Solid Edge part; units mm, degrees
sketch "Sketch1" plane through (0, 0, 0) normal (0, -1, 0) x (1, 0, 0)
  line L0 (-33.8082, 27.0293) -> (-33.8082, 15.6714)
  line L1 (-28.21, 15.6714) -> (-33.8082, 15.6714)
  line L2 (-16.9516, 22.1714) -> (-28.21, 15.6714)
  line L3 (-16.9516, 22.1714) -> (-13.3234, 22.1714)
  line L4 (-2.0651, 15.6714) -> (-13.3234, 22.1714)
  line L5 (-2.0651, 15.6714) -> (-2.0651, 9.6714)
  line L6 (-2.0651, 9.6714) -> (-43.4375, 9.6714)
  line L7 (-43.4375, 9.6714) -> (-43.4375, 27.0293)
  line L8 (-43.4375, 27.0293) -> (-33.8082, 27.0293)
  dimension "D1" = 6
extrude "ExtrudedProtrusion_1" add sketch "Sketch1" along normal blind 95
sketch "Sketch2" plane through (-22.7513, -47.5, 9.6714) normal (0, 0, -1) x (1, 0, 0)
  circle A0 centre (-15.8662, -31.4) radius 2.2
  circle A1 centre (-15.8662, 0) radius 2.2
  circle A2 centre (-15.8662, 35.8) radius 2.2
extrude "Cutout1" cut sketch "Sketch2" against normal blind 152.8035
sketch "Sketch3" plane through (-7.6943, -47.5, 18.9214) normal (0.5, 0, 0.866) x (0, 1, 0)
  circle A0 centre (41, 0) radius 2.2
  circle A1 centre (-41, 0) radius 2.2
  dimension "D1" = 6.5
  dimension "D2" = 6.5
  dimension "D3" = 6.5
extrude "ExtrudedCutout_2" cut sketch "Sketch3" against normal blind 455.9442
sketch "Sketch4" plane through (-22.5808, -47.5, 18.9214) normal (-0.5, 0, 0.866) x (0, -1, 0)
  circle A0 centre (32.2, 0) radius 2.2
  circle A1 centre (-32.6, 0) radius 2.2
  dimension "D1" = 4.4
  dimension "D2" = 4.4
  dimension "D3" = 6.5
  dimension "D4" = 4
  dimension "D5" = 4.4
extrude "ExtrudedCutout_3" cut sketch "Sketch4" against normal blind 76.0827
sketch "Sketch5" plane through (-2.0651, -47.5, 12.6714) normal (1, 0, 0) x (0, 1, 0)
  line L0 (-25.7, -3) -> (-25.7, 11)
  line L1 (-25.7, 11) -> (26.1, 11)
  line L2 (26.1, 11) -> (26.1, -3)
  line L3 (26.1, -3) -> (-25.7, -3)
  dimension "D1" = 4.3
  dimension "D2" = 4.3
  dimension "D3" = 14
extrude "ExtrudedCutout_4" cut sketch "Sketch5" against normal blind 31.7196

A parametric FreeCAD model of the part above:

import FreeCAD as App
import Part
import Sketcher

V = App.Vector
Q = App.Units.Quantity


def add_polygon(sketch, points):
    """Adds a closed chain of lines whose ends are joined by coincident constraints."""
    first, n = sketch.GeometryCount, len(points)
    for a, b in zip(points, points[1:] + points[:1]):
        sketch.addGeometry(Part.LineSegment(App.Vector(*a, 0), App.Vector(*b, 0)), False)
    for i in range(n):
        sketch.addConstraint(Sketcher.Constraint("Coincident", first + i, 2, first + (i + 1) % n, 1))

doc = App.newDocument("Part")
params = doc.addObject("Spreadsheet::Sheet", "Params")
for row, (alias, value) in enumerate([
    ("sketch1_height", "6 mm"),
    ("sketch1_length", "13 mm"),
    ("pad1_length", "95 mm"),
    ("sketch2_diameter", "4.4 mm"),
    ("pocket1_length", "152.8035 mm"),
    ("sketch3_diameter", "4.4 mm"),
    ("pocket2_length", "455.9442 mm"),
    ("sketch4_diameter", "4.4 mm"),
    ("pocket3_length", "76.0827 mm"),
    ("sketch5_height", "14 mm"),
    ("sketch5_width", "51.8 mm"),
    ("pocket4_length", "31.7196 mm"),
], start=1):
    params.set(f"A{row}", alias)
    params.set(f"B{row}", "=" + value)
    params.setAlias(f"B{row}", alias)

body = doc.addObject("PartDesign::Body", "Body")

sketch1 = body.newObject("Sketcher::SketchObject", "Sketch")
sketch1.AttachmentSupport = (doc.getObject("XZ_Plane"), [""])
sketch1.MapMode = "FlatFace"
add_polygon(sketch1, [(-33.8, 15.7), (-33.8, 27), (-43.4, 27), (-43.4, 9.7), (-2.1, 9.7), (-2.1, 15.7), (-13.3, 22.2), (-17, 22.2), (-28.2, 15.7)])
sketch1.addConstraint([
    Sketcher.Constraint("Vertical", 0),
    Sketcher.Constraint("Horizontal", 1),
    Sketcher.Constraint("Vertical", 2),
    Sketcher.Constraint("Horizontal", 3),
    Sketcher.Constraint("Vertical", 4),
    Sketcher.Constraint("Horizontal", 6),
    Sketcher.Constraint("Horizontal", 8),
    Sketcher.Constraint("Horizontal", 4, 2, 7, 2),
    Sketcher.Constraint("Equal", 5, 7),
    Sketcher.Constraint("DistanceY", 4, 1, 4, 2, 6.0),
    Sketcher.Constraint("Angle", 5, Q("150 deg")),
    Sketcher.Constraint("Distance", 5, 13.0),
    Sketcher.Constraint("DistanceY", 0, 1, 0, 2, 11.358),
    Sketcher.Constraint("DistanceX", 7, 2, -1, 1, 28.21),
    Sketcher.Constraint("DistanceX", 1, 2, 1, 1, 9.6293),
    Sketcher.Constraint("DistanceX", 3, 1, 3, 2, 41.3724),
    Sketcher.Constraint("DistanceX", 6, 2, 6, 1, 3.6282),
    Sketcher.Constraint("DistanceY", -1, 1, 0, 2, 27.0293),
])
sketch1.setExpression("Constraints[18]", "Params.sketch1_height")
sketch1.setExpression("Constraints[20]", "Params.sketch1_length")
pad1 = body.newObject("PartDesign::Pad", "Pad")
pad1.Profile = sketch1
pad1.setExpression("Length", "Params.pad1_length")

sketch2 = body.newObject("Sketcher::SketchObject", "Sketch001")
sketch2.AttachmentSupport = (doc.getObject("XY_Plane"), [""])
sketch2.MapMode = "FlatFace"
sketch2.AttachmentOffset = App.Placement(V(0, 0, 9.6714), App.Rotation())
sketch2.addGeometry([
    Part.Circle(V(-38.6, -16.1, 0), V(0, 0, 1), 2.2),
    Part.Circle(V(-38.6, -47.5, 0), V(0, 0, 1), 2.2),
    Part.Circle(V(-38.6, -83.3, 0), V(0, 0, 1), 2.2),
], False)
sketch2.addConstraint([
    Sketcher.Constraint("Equal", 0, 1),
    Sketcher.Constraint("Equal", 1, 2),
    Sketcher.Constraint("Vertical", 0, 3, 1, 3),
    Sketcher.Constraint("Vertical", 1, 3, 2, 3),
    Sketcher.Constraint("Diameter", 0, 4.4),
    Sketcher.Constraint("DistanceY", 0, 3, -1, 1, 16.1),
    Sketcher.Constraint("DistanceY", 1, 3, -1, 1, 47.5),
    Sketcher.Constraint("DistanceY", 2, 3, -1, 1, 83.3),
    Sketcher.Constraint("DistanceX", 0, 3, -1, 1, 38.6175),
])
sketch2.setExpression("Constraints[4]", "Params.sketch2_diameter")
pocket1 = body.newObject("PartDesign::Pocket", "Pocket")
pocket1.Profile = sketch2
pocket1.setExpression("Length", "Params.pocket1_length")
pocket1.Reversed = True

sketch3 = body.newObject("Sketcher::SketchObject", "Sketch002")
sketch3.Placement = App.Placement(V(-7.6943, -47.5, 18.9214), App.Rotation(V(0, 1, 0), V(-0.866025404, 0, 0.5), V(0.5, 0, 0.866025404), "ZXY"))
sketch3.addGeometry([
    Part.Circle(V(41, 0, 0), V(0, 0, 1), 2.2),
    Part.Circle(V(-41, 0, 0), V(0, 0, 1), 2.2),
], False)
sketch3.addConstraint([
    Sketcher.Constraint("Equal", 0, 1),
    Sketcher.Constraint("Symmetric", 0, 3, 1, 3, -1, 1),
    Sketcher.Constraint("PointOnObject", 0, 3, -1),
    Sketcher.Constraint("Diameter", 0, 4.4),
    Sketcher.Constraint("DistanceX", -1, 1, 0, 3, 41.0),
])
sketch3.setExpression("Constraints[3]", "Params.sketch3_diameter")
pocket2 = body.newObject("PartDesign::Pocket", "Pocket001")
pocket2.Profile = sketch3
pocket2.setExpression("Length", "Params.pocket2_length")

sketch4 = body.newObject("Sketcher::SketchObject", "Sketch003")
sketch4.Placement = App.Placement(V(-22.5808, -47.5, 18.9214), App.Rotation(V(0, -1, 0), V(0.866025404, 0, 0.5), V(-0.5, 0, 0.866025404), "ZXY"))
sketch4.addGeometry([
    Part.Circle(V(32.2, 0, 0), V(0, 0, 1), 2.2),
    Part.Circle(V(-32.6, 0, 0), V(0, 0, 1), 2.2),
], False)
sketch4.addConstraint([
    Sketcher.Constraint("Equal", 0, 1),
    Sketcher.Constraint("PointOnObject", 0, 3, -1),
    Sketcher.Constraint("PointOnObject", 1, 3, -1),
    Sketcher.Constraint("Diameter", 0, 4.4),
    Sketcher.Constraint("DistanceX", -1, 1, 0, 3, 32.2),
    Sketcher.Constraint("DistanceX", 1, 3, -1, 1, 32.6),
])
sketch4.setExpression("Constraints[3]", "Params.sketch4_diameter")
pocket3 = body.newObject("PartDesign::Pocket", "Pocket002")
pocket3.Profile = sketch4
pocket3.setExpression("Length", "Params.pocket3_length")

sketch5 = body.newObject("Sketcher::SketchObject", "Sketch004")
sketch5.AttachmentSupport = (doc.getObject("YZ_Plane"), [""])
sketch5.MapMode = "FlatFace"
sketch5.AttachmentOffset = App.Placement(V(0, 0, -2.0651), App.Rotation())
add_polygon(sketch5, [(-73, 24), (-73, 10), (-21, 10), (-21, 24)])
sketch5.addConstraint([
    Sketcher.Constraint("Vertical", 0),
    Sketcher.Constraint("Horizontal", 1),
    Sketcher.Constraint("Vertical", 2),
    Sketcher.Constraint("Horizontal", 3),
    Sketcher.Constraint("DistanceY", 0, 2, 0, 1, 14.0),
    Sketcher.Constraint("DistanceX", 1, 1, 1, 2, 51.8),
    Sketcher.Constraint("DistanceX", 0, 2, -1, 1, 73.2),
    Sketcher.Constraint("DistanceY", -1, 1, 0, 2, 9.6714),
])
sketch5.setExpression("Constraints[8]", "Params.sketch5_height")
sketch5.setExpression("Constraints[9]", "Params.sketch5_width")
pocket4 = body.newObject("PartDesign::Pocket", "Pocket003")
pocket4.Profile = sketch5
pocket4.setExpression("Length", "Params.pocket4_length")

doc.recompute()
